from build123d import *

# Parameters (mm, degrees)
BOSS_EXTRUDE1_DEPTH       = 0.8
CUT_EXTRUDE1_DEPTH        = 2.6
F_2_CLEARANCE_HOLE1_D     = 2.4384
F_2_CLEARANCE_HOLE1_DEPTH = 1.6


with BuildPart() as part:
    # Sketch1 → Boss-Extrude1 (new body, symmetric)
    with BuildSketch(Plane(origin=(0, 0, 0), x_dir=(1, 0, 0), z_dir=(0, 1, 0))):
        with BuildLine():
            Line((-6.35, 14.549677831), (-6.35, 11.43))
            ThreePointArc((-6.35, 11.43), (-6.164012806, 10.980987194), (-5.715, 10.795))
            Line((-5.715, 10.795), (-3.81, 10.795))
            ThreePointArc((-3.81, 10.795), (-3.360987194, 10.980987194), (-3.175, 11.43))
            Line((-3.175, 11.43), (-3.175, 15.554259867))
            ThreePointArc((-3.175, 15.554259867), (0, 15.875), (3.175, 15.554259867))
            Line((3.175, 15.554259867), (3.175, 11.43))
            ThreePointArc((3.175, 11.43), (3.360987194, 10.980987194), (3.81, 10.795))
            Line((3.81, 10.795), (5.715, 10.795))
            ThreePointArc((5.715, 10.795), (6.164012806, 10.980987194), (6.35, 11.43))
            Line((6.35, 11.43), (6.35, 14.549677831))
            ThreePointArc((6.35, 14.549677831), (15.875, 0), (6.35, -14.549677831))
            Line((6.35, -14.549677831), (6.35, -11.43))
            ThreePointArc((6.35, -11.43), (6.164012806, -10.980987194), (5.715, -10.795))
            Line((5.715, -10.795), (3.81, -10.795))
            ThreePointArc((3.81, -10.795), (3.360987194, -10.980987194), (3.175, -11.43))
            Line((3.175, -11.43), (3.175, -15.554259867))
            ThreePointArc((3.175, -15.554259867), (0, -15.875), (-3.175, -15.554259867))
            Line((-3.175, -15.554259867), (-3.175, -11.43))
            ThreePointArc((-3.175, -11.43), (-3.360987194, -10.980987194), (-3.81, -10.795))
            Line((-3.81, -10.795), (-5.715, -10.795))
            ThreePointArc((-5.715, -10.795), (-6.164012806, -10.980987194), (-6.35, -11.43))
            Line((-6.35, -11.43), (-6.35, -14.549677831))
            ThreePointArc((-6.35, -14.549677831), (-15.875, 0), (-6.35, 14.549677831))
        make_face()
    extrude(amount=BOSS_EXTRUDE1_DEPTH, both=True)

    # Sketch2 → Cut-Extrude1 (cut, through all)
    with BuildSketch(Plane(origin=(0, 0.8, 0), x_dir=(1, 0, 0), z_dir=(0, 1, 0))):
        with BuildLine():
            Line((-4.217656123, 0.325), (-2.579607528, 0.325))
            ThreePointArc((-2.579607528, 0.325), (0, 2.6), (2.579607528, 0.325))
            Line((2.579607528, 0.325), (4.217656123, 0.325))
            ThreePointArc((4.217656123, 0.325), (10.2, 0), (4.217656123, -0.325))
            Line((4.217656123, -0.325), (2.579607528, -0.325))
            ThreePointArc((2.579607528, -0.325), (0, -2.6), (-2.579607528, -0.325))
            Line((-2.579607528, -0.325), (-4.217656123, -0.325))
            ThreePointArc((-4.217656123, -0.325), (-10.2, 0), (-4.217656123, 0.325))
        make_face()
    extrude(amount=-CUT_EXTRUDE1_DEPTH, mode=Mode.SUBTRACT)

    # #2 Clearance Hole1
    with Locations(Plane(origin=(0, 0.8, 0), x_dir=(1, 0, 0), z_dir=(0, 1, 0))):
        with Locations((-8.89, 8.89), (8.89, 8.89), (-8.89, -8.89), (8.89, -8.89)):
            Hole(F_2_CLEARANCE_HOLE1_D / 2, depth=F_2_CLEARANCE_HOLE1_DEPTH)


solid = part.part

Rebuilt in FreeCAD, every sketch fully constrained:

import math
import FreeCAD as App
import Part
import Sketcher

doc = App.newDocument("Part")
body = doc.addObject("PartDesign::Body", "Body")

# Sketch on XZ plane
sketch1 = body.newObject("Sketcher::SketchObject", "Sketch")
sketch1.AttachmentSupport = (doc.getObject("XZ_Plane"), [""])
sketch1.MapMode = "FlatFace"
sketch1.addGeometry([
    Part.LineSegment(App.Vector(-6.3, -11.4, 0), App.Vector(-6.3, -14.5, 0)),  # 0
    Part.ArcOfCircle(Part.Circle(App.Vector(0, 0, 0), App.Vector(0, 0, 1), 15.9), math.radians(114), math.radians(246)),  # 1
    Part.LineSegment(App.Vector(-6.3, 14.5, 0), App.Vector(-6.3, 11.4, 0)),  # 2
    Part.ArcOfCircle(Part.Circle(App.Vector(-5.7, 11.4, 0), App.Vector(0, 0, 1), 0.6), math.radians(180), math.radians(270)),  # 3
    Part.LineSegment(App.Vector(-5.7, 10.8, 0), App.Vector(-3.8, 10.8, 0)),  # 4
    Part.ArcOfCircle(Part.Circle(App.Vector(-3.8, 11.4, 0), App.Vector(0, 0, 1), 0.6), math.radians(-90), math.radians(0)),  # 5
    Part.LineSegment(App.Vector(-3.2, 11.4, 0), App.Vector(-3.2, 15.6, 0)),  # 6
    Part.ArcOfCircle(Part.Circle(App.Vector(0, 0, 0), App.Vector(0, 0, 1), 15.9), math.radians(78), math.radians(102)),  # 7
    Part.LineSegment(App.Vector(3.2, 15.6, 0), App.Vector(3.2, 11.4, 0)),  # 8
    Part.ArcOfCircle(Part.Circle(App.Vector(3.8, 11.4, 0), App.Vector(0, 0, 1), 0.6), math.radians(180), math.radians(270)),  # 9
    Part.LineSegment(App.Vector(3.8, 10.8, 0), App.Vector(5.7, 10.8, 0)),  # 10
    Part.ArcOfCircle(Part.Circle(App.Vector(5.7, 11.4, 0), App.Vector(0, 0, 1), 0.6), math.radians(-90), math.radians(0)),  # 11
    Part.LineSegment(App.Vector(6.3, 11.4, 0), App.Vector(6.3, 14.5, 0)),  # 12
    Part.ArcOfCircle(Part.Circle(App.Vector(0, 0, 0), App.Vector(0, 0, 1), 15.9), math.radians(-66), math.radians(66)),  # 13
    Part.LineSegment(App.Vector(6.3, -14.5, 0), App.Vector(6.3, -11.4, 0)),  # 14
    Part.ArcOfCircle(Part.Circle(App.Vector(5.7, -11.4, 0), App.Vector(0, 0, 1), 0.6), math.radians(0), math.radians(90)),  # 15
    Part.LineSegment(App.Vector(5.7, -10.8, 0), App.Vector(3.8, -10.8, 0)),  # 16
    Part.ArcOfCircle(Part.Circle(App.Vector(3.8, -11.4, 0), App.Vector(0, 0, 1), 0.6), math.radians(90), math.radians(180)),  # 17
    Part.LineSegment(App.Vector(3.2, -11.4, 0), App.Vector(3.2, -15.6, 0)),  # 18
    Part.ArcOfCircle(Part.Circle(App.Vector(0, 0, 0), App.Vector(0, 0, 1), 15.9), math.radians(-102), math.radians(-78)),  # 19
    Part.LineSegment(App.Vector(-3.2, -15.6, 0), App.Vector(-3.2, -11.4, 0)),  # 20
    Part.ArcOfCircle(Part.Circle(App.Vector(-3.8, -11.4, 0), App.Vector(0, 0, 1), 0.6), math.radians(0), math.radians(90)),  # 21
    Part.LineSegment(App.Vector(-3.8, -10.8, 0), App.Vector(-5.7, -10.8, 0)),  # 22
    Part.ArcOfCircle(Part.Circle(App.Vector(-5.7, -11.4, 0), App.Vector(0, 0, 1), 0.6), math.radians(90), math.radians(180)),  # 23
], False)
sketch1.addConstraint([
    Sketcher.Constraint("Coincident", 0, 2, 1, 2),
    Sketcher.Constraint("Coincident", 1, 1, 2, 1),
    Sketcher.Constraint("Tangent", 2, 2, 3, 1),
    Sketcher.Constraint("Tangent", 3, 2, 4, 1),
    Sketcher.Constraint("Tangent", 4, 2, 5, 1),
    Sketcher.Constraint("Tangent", 5, 2, 6, 1),
    Sketcher.Constraint("Coincident", 6, 2, 7, 2),
    Sketcher.Constraint("Coincident", 7, 1, 8, 1),
    Sketcher.Constraint("Tangent", 8, 2, 9, 1),
    Sketcher.Constraint("Tangent", 9, 2, 10, 1),
    Sketcher.Constraint("Tangent", 10, 2, 11, 1),
    Sketcher.Constraint("Tangent", 11, 2, 12, 1),
    Sketcher.Constraint("Coincident", 12, 2, 13, 2),
    Sketcher.Constraint("Coincident", 13, 1, 14, 1),
    Sketcher.Constraint("Tangent", 14, 2, 15, 1),
    Sketcher.Constraint("Tangent", 15, 2, 16, 1),
    Sketcher.Constraint("Tangent", 16, 2, 17, 1),
    Sketcher.Constraint("Tangent", 17, 2, 18, 1),
    Sketcher.Constraint("Coincident", 18, 2, 19, 2),
    Sketcher.Constraint("Coincident", 19, 1, 20, 1),
    Sketcher.Constraint("Tangent", 20, 2, 21, 1),
    Sketcher.Constraint("Tangent", 21, 2, 22, 1),
    Sketcher.Constraint("Tangent", 22, 2, 23, 1),
    Sketcher.Constraint("Tangent", 23, 2, 0, 1),
    Sketcher.Constraint("Vertical", 0),
    Sketcher.Constraint("Vertical", 2),
    Sketcher.Constraint("Horizontal", 4),
    Sketcher.Constraint("Vertical", 6),
    Sketcher.Constraint("Vertical", 8),
    Sketcher.Constraint("Horizontal", 10),
    Sketcher.Constraint("Vertical", 12),
    Sketcher.Constraint("Vertical", 14),
    Sketcher.Constraint("Horizontal", 16),
    Sketcher.Constraint("Vertical", 18),
    Sketcher.Constraint("Vertical", 20),
    Sketcher.Constraint("Horizontal", 22),
    Sketcher.Constraint("Coincident", 1, 3, -1, 1),
    Sketcher.Constraint("Coincident", 7, 3, -1, 1),
    Sketcher.Constraint("Coincident", 13, 3, -1, 1),
    Sketcher.Constraint("Coincident", 19, 3, -1, 1),
    Sketcher.Constraint("Equal", 3, 5),
    Sketcher.Constraint("Equal", 1, 7),
    Sketcher.Constraint("Equal", 5, 9),
    Sketcher.Constraint("Equal", 9, 11),
    Sketcher.Constraint("Equal", 7, 13),
    Sketcher.Constraint("Equal", 11, 15),
    Sketcher.Constraint("Equal", 15, 17),
    Sketcher.Constraint("Equal", 13, 19),
    Sketcher.Constraint("Equal", 17, 21),
    Sketcher.Constraint("Equal", 21, 23),
    Sketcher.Constraint("Symmetric", 3, 3, 15, 3, -1, 1),
    Sketcher.Constraint("Symmetric", 9, 3, 21, 3, -1, 1),
    Sketcher.Constraint("Symmetric", 5, 3, 9, 3, -2),
    Sketcher.Constraint("Horizontal", 1, 1, 12, 2),
    Sketcher.Constraint("Horizontal", 0, 2, 13, 1),
    Sketcher.Constraint("Horizontal", 18, 2, 19, 1),
    Sketcher.Constraint("Radius", 1, 15.875),
    Sketcher.Constraint("Radius", 3, 0.635),
    Sketcher.Constraint("DistanceX", 0, 2, 13, 1, 12.7),
    Sketcher.Constraint("DistanceX", 4, 1, 4, 2, 1.905),
    Sketcher.Constraint("DistanceY", -1, 1, 3, 3, 11.43),
])
pad1 = body.newObject("PartDesign::Pad", "Pad")
pad1.Profile = sketch1
pad1.Length = 1.6
pad1.Midplane = True

# Sketch on XZ plane
sketch2 = body.newObject("Sketcher::SketchObject", "Sketch001")
sketch2.AttachmentSupport = (doc.getObject("XZ_Plane"), [""])
sketch2.MapMode = "FlatFace"
sketch2.AttachmentOffset = App.Placement(App.Vector(0, 0, -0.8), App.Rotation())
sketch2.addGeometry([
    Part.LineSegment(App.Vector(-2.6, -0.3, 0), App.Vector(-4.2, -0.3, 0)),  # 0
    Part.ArcOfCircle(Part.Circle(App.Vector(-7.2, 0, 0), App.Vector(0, 0, 1), 3), math.radians(6), math.radians(354)),  # 1
    Part.LineSegment(App.Vector(-4.2, 0.3, 0), App.Vector(-2.6, 0.3, 0)),  # 2
    Part.ArcOfCircle(Part.Circle(App.Vector(0, 0, 0), App.Vector(0, 0, 1), 2.6), math.radians(7), math.radians(173)),  # 3
    Part.LineSegment(App.Vector(2.6, 0.3, 0), App.Vector(4.2, 0.3, 0)),  # 4
    Part.ArcOfCircle(Part.Circle(App.Vector(7.2, 0, 0), App.Vector(0, 0, 1), 3), math.radians(-174), math.radians(174)),  # 5
    Part.LineSegment(App.Vector(4.2, -0.3, 0), App.Vector(2.6, -0.3, 0)),  # 6
    Part.ArcOfCircle(Part.Circle(App.Vector(0, 0, 0), App.Vector(0, 0, 1), 2.6), math.radians(-173), math.radians(-7)),  # 7
], False)
sketch2.addConstraint([
    Sketcher.Constraint("Coincident", 0, 2, 1, 2),
    Sketcher.Constraint("Coincident", 1, 1, 2, 1),
    Sketcher.Constraint("Coincident", 2, 2, 3, 2),
    Sketcher.Constraint("Coincident", 3, 1, 4, 1),
    Sketcher.Constraint("Coincident", 4, 2, 5, 2),
    Sketcher.Constraint("Coincident", 5, 1, 6, 1),
    Sketcher.Constraint("Coincident", 6, 2, 7, 2),
    Sketcher.Constraint("Coincident", 7, 1, 0, 1),
    Sketcher.Constraint("Horizontal", 0),
    Sketcher.Constraint("Horizontal", 2),
    Sketcher.Constraint("Horizontal", 4),
    Sketcher.Constraint("Horizontal", 6),
    Sketcher.Constraint("Coincident", 3, 3, -1, 1),
    Sketcher.Constraint("Coincident", 7, 3, -1, 1),
    Sketcher.Constraint("Equal", 1, 5),
    Sketcher.Constraint("Equal", 3, 7),
    Sketcher.Constraint("Symmetric", 1, 3, 5, 3, -1, 1),
    Sketcher.Constraint("Symmetric", 1, 1, 4, 2, -2),
    Sketcher.Constraint("Horizontal", 0, 2, 5, 1),
    Sketcher.Constraint("Vertical", 0, 2, 1, 1),
    Sketcher.Constraint("Radius", 1, 3.0),
    Sketcher.Constraint("Radius", 3, 2.6),
    Sketcher.Constraint("DistanceX", 1, 3, -1, 1, 7.2),
    Sketcher.Constraint("DistanceY", 0, 2, 1, 1, 0.65),
])
pocket1 = body.newObject("PartDesign::Pocket", "Pocket")
pocket1.Profile = sketch2
pocket1.Type = "ThroughAll"
pocket1.Reversed = True

# Sketch on XZ plane
sketch3 = body.newObject("Sketcher::SketchObject", "Sketch002")
sketch3.AttachmentSupport = (doc.getObject("XZ_Plane"), [""])
sketch3.MapMode = "FlatFace"
sketch3.AttachmentOffset = App.Placement(App.Vector(0, 0, -0.8), App.Rotation())
sketch3.addGeometry([
    Part.Circle(App.Vector(-8.9, -8.9, 0), App.Vector(0, 0, 1), 1.2),
    Part.Circle(App.Vector(8.9, -8.9, 0), App.Vector(0, 0, 1), 1.2),
    Part.Circle(App.Vector(-8.9, 8.9, 0), App.Vector(0, 0, 1), 1.2),
    Part.Circle(App.Vector(8.9, 8.9, 0), App.Vector(0, 0, 1), 1.2),
], False)
sketch3.addConstraint([
    Sketcher.Constraint("Equal", 0, 1),
    Sketcher.Constraint("Equal", 1, 2),
    Sketcher.Constraint("Equal", 2, 3),
    Sketcher.Constraint("Symmetric", 1, 3, 2, 3, -1, 1),
    Sketcher.Constraint("Symmetric", 0, 3, 3, 3, -1, 1),
    Sketcher.Constraint("Symmetric", 0, 3, 1, 3, -2),
    Sketcher.Constraint("Diameter", 0, 2.4384),
    Sketcher.Constraint("DistanceX", 0, 3, -1, 1, 8.89),
    Sketcher.Constraint("DistanceY", 0, 3, -1, 1, 8.89),
])
doc.recompute()
hole = body.newObject("PartDesign::Hole", "Hole")
hole.Profile = sketch3
hole.ThreadType = "None"
hole.Diameter = 2.4384
hole.DepthType = "Dimension"
hole.Depth = 1.6
hole.DrillPoint = "Flat"
hole.Reversed = True

doc.recompute()
